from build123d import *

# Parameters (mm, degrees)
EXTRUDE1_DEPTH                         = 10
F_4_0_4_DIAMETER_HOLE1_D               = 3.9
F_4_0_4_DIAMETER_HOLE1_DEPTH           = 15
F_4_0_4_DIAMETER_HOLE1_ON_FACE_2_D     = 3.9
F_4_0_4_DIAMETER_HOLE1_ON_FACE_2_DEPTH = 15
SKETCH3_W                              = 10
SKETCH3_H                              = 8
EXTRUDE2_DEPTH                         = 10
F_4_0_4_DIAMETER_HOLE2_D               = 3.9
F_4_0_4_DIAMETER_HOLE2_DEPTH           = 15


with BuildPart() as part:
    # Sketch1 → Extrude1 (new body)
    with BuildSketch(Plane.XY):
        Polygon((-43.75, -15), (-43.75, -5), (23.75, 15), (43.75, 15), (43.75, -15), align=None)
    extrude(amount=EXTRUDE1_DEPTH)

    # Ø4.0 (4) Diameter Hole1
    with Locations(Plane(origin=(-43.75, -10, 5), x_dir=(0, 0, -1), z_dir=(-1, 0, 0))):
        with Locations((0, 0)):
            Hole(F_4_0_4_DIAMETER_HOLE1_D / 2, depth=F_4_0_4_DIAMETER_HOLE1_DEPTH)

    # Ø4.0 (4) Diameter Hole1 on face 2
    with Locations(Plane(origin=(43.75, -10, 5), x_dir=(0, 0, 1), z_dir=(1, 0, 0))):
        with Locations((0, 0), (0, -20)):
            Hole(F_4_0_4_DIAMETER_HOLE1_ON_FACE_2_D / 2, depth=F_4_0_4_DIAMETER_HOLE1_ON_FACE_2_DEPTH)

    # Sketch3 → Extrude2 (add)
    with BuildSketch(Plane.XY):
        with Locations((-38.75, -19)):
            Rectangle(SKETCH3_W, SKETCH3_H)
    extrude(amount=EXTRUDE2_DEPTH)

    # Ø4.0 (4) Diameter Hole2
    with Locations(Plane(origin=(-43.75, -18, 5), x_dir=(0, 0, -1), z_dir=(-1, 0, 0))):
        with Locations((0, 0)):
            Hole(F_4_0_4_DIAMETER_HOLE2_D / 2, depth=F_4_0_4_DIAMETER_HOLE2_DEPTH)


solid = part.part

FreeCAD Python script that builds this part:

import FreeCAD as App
import Part
import Sketcher

doc = App.newDocument("Part")
body = doc.addObject("PartDesign::Body", "Body")

sketch1 = body.newObject("Sketcher::SketchObject", "Sketch")
sketch1.AttachmentSupport = (doc.getObject("XY_Plane"), [""])
sketch1.MapMode = "FlatFace"
sketch1.addGeometry(Part.LineSegment(App.Vector(-43.75, -5, 0), App.Vector(-43.75, -15, 0)), False)
sketch1.addGeometry(Part.LineSegment(App.Vector(-43.75, -15, 0), App.Vector(43.75, -15, 0)), False)
sketch1.addGeometry(Part.LineSegment(App.Vector(43.75, -15, 0), App.Vector(43.75, 15, 0)), False)
sketch1.addGeometry(Part.LineSegment(App.Vector(43.75, 15, 0), App.Vector(23.75, 15, 0)), False)
sketch1.addGeometry(Part.LineSegment(App.Vector(23.75, 15, 0), App.Vector(-43.75, -5, 0)), False)
sketch1.addConstraint(Sketcher.Constraint("Coincident", 0, 2, 1, 1))
sketch1.addConstraint(Sketcher.Constraint("Coincident", 1, 2, 2, 1))
sketch1.addConstraint(Sketcher.Constraint("Coincident", 2, 2, 3, 1))
sketch1.addConstraint(Sketcher.Constraint("Coincident", 3, 2, 4, 1))
sketch1.addConstraint(Sketcher.Constraint("Coincident", 4, 2, 0, 1))
sketch1.addConstraint(Sketcher.Constraint("Vertical", 0))
sketch1.addConstraint(Sketcher.Constraint("Horizontal", 1))
sketch1.addConstraint(Sketcher.Constraint("Vertical", 2))
sketch1.addConstraint(Sketcher.Constraint("Horizontal", 3))
sketch1.addConstraint(Sketcher.Constraint("Symmetric", 0, 2, 2, 2, -1, 1))
sketch1.addConstraint(Sketcher.Constraint("DistanceX", 3, 2, 3, 1, 20.0))
sketch1.addConstraint(Sketcher.Constraint("DistanceY", 0, 2, 0, 1, 10.0))
sketch1.addConstraint(Sketcher.Constraint("DistanceY", 2, 1, 2, 2, 30.0))
sketch1.addConstraint(Sketcher.Constraint("DistanceX", 1, 1, 1, 2, 87.5))
pad1 = body.newObject("PartDesign::Pad", "Pad")
pad1.Profile = sketch1
pad1.Length = 10

sketch2 = body.newObject("Sketcher::SketchObject", "Sketch001")
sketch2.AttachmentSupport = (doc.getObject("YZ_Plane"), [""])
sketch2.MapMode = "FlatFace"
sketch2.AttachmentOffset = App.Placement(App.Vector(0, 0, -43.75), App.Rotation())
sketch2.addGeometry(Part.Circle(App.Vector(-10, 5, 0), App.Vector(0, 0, 1), 1.95), False)
sketch2.addConstraint(Sketcher.Constraint("Diameter", 0, 3.9))
sketch2.addConstraint(Sketcher.Constraint("DistanceX", 0, 3, -1, 1, 10.0))
sketch2.addConstraint(Sketcher.Constraint("DistanceY", -1, 1, 0, 3, 5.0))
doc.recompute()
hole = body.newObject("PartDesign::Hole", "Hole")
hole.Profile = sketch2
hole.ThreadType = "None"
hole.Diameter = 3.9
hole.DepthType = "Dimension"
hole.Depth = 15
hole.DrillPoint = "Flat"
hole.Reversed = True

sketch3 = body.newObject("Sketcher::SketchObject", "Sketch002")
sketch3.AttachmentSupport = (doc.getObject("YZ_Plane"), [""])
sketch3.MapMode = "FlatFace"
sketch3.AttachmentOffset = App.Placement(App.Vector(0, 0, 43.75), App.Rotation())
sketch3.addGeometry(Part.Circle(App.Vector(-10, 5, 0), App.Vector(0, 0, 1), 1.95), False)
sketch3.addGeometry(Part.Circle(App.Vector(10, 5, 0), App.Vector(0, 0, 1), 1.95), False)
sketch3.addConstraint(Sketcher.Constraint("Equal", 0, 1))
sketch3.addConstraint(Sketcher.Constraint("Symmetric", 0, 3, 1, 3, -2))
sketch3.addConstraint(Sketcher.Constraint("Diameter", 0, 3.9))
sketch3.addConstraint(Sketcher.Constraint("DistanceX", 0, 3, -1, 1, 10.0))
sketch3.addConstraint(Sketcher.Constraint("DistanceY", -1, 1, 0, 3, 5.0))
doc.recompute()
hole2 = body.newObject("PartDesign::Hole", "Hole001")
hole2.Profile = sketch3
hole2.ThreadType = "None"
hole2.Diameter = 3.9
hole2.DepthType = "Dimension"
hole2.Depth = 15
hole2.DrillPoint = "Flat"

sketch4 = body.newObject("Sketcher::SketchObject", "Sketch003")
sketch4.AttachmentSupport = (doc.getObject("XY_Plane"), [""])
sketch4.MapMode = "FlatFace"
sketch4.addGeometry(Part.LineSegment(App.Vector(-43.75, -15, 0), App.Vector(-43.75, -23, 0)), False)
sketch4.addGeometry(Part.LineSegment(App.Vector(-43.75, -23, 0), App.Vector(-33.75, -23, 0)), False)
sketch4.addGeometry(Part.LineSegment(App.Vector(-33.75, -23, 0), App.Vector(-33.75, -15, 0)), False)
sketch4.addGeometry(Part.LineSegment(App.Vector(-33.75, -15, 0), App.Vector(-43.75, -15, 0)), False)
sketch4.addConstraint(Sketcher.Constraint("Coincident", 0, 2, 1, 1))
sketch4.addConstraint(Sketcher.Constraint("Coincident", 1, 2, 2, 1))
sketch4.addConstraint(Sketcher.Constraint("Coincident", 2, 2, 3, 1))
sketch4.addConstraint(Sketcher.Constraint("Coincident", 3, 2, 0, 1))
sketch4.addConstraint(Sketcher.Constraint("Vertical", 0))
sketch4.addConstraint(Sketcher.Constraint("Horizontal", 1))
sketch4.addConstraint(Sketcher.Constraint("Vertical", 2))
sketch4.addConstraint(Sketcher.Constraint("Horizontal", 3))
sketch4.addConstraint(Sketcher.Constraint("DistanceX", 1, 1, 1, 2, 10.0))
sketch4.addConstraint(Sketcher.Constraint("DistanceY", 0, 2, 0, 1, 8.0))
sketch4.addConstraint(Sketcher.Constraint("DistanceY", 0, 2, -1, 1, 23.0))
sketch4.addConstraint(Sketcher.Constraint("DistanceX", 0, 2, -1, 1, 43.75))
pad2 = body.newObject("PartDesign::Pad", "Pad001")
pad2.Profile = sketch4
pad2.Length = 10

sketch5 = body.newObject("Sketcher::SketchObject", "Sketch004")
sketch5.AttachmentSupport = (doc.getObject("YZ_Plane"), [""])
sketch5.MapMode = "FlatFace"
sketch5.AttachmentOffset = App.Placement(App.Vector(0, 0, -43.75), App.Rotation())
sketch5.addGeometry(Part.Circle(App.Vector(-18, 5, 0), App.Vector(0, 0, 1), 1.95), False)
sketch5.addConstraint(Sketcher.Constraint("Diameter", 0, 3.9))
sketch5.addConstraint(Sketcher.Constraint("DistanceX", 0, 3, -1, 1, 18.0))
sketch5.addConstraint(Sketcher.Constraint("DistanceY", -1, 1, 0, 3, 5.0))
doc.recompute()
hole3 = body.newObject("PartDesign::Hole", "Hole002")
hole3.Profile = sketch5
hole3.ThreadType = "None"
hole3.Diameter = 3.9
hole3.DepthType = "Dimension"
hole3.Depth = 15
hole3.DrillPoint = "Flat"
hole3.Reversed = True

doc.recompute()
